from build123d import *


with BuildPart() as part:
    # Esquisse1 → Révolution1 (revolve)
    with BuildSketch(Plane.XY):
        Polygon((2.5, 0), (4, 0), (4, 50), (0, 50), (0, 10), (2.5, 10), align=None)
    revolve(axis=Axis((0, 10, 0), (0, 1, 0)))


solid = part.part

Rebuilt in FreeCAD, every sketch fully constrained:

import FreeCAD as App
import Part
import Sketcher

V = App.Vector
Q = App.Units.Quantity

doc = App.newDocument("Part")
body = doc.addObject("PartDesign::Body", "Body")

# Sketch on XY plane
sketch1 = body.newObject("Sketcher::SketchObject", "Sketch")
sketch1.AttachmentSupport = (doc.getObject("XY_Plane"), [""])
sketch1.MapMode = "FlatFace"
sketch1.addGeometry(Part.LineSegment(V(2.5, 0, 0), V(4, 0, 0)), False)
sketch1.addGeometry(Part.LineSegment(V(4, 0, 0), V(4, 50, 0)), False)
sketch1.addGeometry(Part.LineSegment(V(4, 50, 0), V(0, 50, 0)), False)
sketch1.addGeometry(Part.LineSegment(V(0, 50, 0), V(0, 10, 0)), False)
sketch1.addGeometry(Part.LineSegment(V(0, 10, 0), V(2.5, 10, 0)), False)
sketch1.addGeometry(Part.LineSegment(V(2.5, 10, 0), V(2.5, 0, 0)), False)
sketch1.addConstraint(Sketcher.Constraint("Coincident", 0, 2, 1, 1))
sketch1.addConstraint(Sketcher.Constraint("Coincident", 1, 2, 2, 1))
sketch1.addConstraint(Sketcher.Constraint("Coincident", 2, 2, 3, 1))
sketch1.addConstraint(Sketcher.Constraint("Coincident", 3, 2, 4, 1))
sketch1.addConstraint(Sketcher.Constraint("Coincident", 4, 2, 5, 1))
sketch1.addConstraint(Sketcher.Constraint("Coincident", 5, 2, 0, 1))
sketch1.addConstraint(Sketcher.Constraint("Horizontal", 0))
sketch1.addConstraint(Sketcher.Constraint("Vertical", 1))
sketch1.addConstraint(Sketcher.Constraint("Horizontal", 2))
sketch1.addConstraint(Sketcher.Constraint("Vertical", 3))
sketch1.addConstraint(Sketcher.Constraint("Horizontal", 4))
sketch1.addConstraint(Sketcher.Constraint("Vertical", 5))
sketch1.addConstraint(Sketcher.Constraint("PointOnObject", 0, 2, -1))
sketch1.addConstraint(Sketcher.Constraint("PointOnObject", 2, 2, -2))
sketch1.addConstraint(Sketcher.Constraint("DistanceX", 2, 2, 2, 1, Q("4 mm")))
sketch1.addConstraint(Sketcher.Constraint("DistanceY", 1, 1, 1, 2, Q("50 mm")))
sketch1.addConstraint(Sketcher.Constraint("DistanceY", 3, 2, 3, 1, Q("40 mm")))
sketch1.addConstraint(Sketcher.Constraint("DistanceX", 0, 1, 0, 2, Q("1.5 mm")))
revolution = body.newObject("PartDesign::Revolution", "Revolution")
revolution.Profile = sketch1
revolution.ReferenceAxis = (sketch1, ["V_Axis"])
revolution.Angle = 360

doc.recompute()
